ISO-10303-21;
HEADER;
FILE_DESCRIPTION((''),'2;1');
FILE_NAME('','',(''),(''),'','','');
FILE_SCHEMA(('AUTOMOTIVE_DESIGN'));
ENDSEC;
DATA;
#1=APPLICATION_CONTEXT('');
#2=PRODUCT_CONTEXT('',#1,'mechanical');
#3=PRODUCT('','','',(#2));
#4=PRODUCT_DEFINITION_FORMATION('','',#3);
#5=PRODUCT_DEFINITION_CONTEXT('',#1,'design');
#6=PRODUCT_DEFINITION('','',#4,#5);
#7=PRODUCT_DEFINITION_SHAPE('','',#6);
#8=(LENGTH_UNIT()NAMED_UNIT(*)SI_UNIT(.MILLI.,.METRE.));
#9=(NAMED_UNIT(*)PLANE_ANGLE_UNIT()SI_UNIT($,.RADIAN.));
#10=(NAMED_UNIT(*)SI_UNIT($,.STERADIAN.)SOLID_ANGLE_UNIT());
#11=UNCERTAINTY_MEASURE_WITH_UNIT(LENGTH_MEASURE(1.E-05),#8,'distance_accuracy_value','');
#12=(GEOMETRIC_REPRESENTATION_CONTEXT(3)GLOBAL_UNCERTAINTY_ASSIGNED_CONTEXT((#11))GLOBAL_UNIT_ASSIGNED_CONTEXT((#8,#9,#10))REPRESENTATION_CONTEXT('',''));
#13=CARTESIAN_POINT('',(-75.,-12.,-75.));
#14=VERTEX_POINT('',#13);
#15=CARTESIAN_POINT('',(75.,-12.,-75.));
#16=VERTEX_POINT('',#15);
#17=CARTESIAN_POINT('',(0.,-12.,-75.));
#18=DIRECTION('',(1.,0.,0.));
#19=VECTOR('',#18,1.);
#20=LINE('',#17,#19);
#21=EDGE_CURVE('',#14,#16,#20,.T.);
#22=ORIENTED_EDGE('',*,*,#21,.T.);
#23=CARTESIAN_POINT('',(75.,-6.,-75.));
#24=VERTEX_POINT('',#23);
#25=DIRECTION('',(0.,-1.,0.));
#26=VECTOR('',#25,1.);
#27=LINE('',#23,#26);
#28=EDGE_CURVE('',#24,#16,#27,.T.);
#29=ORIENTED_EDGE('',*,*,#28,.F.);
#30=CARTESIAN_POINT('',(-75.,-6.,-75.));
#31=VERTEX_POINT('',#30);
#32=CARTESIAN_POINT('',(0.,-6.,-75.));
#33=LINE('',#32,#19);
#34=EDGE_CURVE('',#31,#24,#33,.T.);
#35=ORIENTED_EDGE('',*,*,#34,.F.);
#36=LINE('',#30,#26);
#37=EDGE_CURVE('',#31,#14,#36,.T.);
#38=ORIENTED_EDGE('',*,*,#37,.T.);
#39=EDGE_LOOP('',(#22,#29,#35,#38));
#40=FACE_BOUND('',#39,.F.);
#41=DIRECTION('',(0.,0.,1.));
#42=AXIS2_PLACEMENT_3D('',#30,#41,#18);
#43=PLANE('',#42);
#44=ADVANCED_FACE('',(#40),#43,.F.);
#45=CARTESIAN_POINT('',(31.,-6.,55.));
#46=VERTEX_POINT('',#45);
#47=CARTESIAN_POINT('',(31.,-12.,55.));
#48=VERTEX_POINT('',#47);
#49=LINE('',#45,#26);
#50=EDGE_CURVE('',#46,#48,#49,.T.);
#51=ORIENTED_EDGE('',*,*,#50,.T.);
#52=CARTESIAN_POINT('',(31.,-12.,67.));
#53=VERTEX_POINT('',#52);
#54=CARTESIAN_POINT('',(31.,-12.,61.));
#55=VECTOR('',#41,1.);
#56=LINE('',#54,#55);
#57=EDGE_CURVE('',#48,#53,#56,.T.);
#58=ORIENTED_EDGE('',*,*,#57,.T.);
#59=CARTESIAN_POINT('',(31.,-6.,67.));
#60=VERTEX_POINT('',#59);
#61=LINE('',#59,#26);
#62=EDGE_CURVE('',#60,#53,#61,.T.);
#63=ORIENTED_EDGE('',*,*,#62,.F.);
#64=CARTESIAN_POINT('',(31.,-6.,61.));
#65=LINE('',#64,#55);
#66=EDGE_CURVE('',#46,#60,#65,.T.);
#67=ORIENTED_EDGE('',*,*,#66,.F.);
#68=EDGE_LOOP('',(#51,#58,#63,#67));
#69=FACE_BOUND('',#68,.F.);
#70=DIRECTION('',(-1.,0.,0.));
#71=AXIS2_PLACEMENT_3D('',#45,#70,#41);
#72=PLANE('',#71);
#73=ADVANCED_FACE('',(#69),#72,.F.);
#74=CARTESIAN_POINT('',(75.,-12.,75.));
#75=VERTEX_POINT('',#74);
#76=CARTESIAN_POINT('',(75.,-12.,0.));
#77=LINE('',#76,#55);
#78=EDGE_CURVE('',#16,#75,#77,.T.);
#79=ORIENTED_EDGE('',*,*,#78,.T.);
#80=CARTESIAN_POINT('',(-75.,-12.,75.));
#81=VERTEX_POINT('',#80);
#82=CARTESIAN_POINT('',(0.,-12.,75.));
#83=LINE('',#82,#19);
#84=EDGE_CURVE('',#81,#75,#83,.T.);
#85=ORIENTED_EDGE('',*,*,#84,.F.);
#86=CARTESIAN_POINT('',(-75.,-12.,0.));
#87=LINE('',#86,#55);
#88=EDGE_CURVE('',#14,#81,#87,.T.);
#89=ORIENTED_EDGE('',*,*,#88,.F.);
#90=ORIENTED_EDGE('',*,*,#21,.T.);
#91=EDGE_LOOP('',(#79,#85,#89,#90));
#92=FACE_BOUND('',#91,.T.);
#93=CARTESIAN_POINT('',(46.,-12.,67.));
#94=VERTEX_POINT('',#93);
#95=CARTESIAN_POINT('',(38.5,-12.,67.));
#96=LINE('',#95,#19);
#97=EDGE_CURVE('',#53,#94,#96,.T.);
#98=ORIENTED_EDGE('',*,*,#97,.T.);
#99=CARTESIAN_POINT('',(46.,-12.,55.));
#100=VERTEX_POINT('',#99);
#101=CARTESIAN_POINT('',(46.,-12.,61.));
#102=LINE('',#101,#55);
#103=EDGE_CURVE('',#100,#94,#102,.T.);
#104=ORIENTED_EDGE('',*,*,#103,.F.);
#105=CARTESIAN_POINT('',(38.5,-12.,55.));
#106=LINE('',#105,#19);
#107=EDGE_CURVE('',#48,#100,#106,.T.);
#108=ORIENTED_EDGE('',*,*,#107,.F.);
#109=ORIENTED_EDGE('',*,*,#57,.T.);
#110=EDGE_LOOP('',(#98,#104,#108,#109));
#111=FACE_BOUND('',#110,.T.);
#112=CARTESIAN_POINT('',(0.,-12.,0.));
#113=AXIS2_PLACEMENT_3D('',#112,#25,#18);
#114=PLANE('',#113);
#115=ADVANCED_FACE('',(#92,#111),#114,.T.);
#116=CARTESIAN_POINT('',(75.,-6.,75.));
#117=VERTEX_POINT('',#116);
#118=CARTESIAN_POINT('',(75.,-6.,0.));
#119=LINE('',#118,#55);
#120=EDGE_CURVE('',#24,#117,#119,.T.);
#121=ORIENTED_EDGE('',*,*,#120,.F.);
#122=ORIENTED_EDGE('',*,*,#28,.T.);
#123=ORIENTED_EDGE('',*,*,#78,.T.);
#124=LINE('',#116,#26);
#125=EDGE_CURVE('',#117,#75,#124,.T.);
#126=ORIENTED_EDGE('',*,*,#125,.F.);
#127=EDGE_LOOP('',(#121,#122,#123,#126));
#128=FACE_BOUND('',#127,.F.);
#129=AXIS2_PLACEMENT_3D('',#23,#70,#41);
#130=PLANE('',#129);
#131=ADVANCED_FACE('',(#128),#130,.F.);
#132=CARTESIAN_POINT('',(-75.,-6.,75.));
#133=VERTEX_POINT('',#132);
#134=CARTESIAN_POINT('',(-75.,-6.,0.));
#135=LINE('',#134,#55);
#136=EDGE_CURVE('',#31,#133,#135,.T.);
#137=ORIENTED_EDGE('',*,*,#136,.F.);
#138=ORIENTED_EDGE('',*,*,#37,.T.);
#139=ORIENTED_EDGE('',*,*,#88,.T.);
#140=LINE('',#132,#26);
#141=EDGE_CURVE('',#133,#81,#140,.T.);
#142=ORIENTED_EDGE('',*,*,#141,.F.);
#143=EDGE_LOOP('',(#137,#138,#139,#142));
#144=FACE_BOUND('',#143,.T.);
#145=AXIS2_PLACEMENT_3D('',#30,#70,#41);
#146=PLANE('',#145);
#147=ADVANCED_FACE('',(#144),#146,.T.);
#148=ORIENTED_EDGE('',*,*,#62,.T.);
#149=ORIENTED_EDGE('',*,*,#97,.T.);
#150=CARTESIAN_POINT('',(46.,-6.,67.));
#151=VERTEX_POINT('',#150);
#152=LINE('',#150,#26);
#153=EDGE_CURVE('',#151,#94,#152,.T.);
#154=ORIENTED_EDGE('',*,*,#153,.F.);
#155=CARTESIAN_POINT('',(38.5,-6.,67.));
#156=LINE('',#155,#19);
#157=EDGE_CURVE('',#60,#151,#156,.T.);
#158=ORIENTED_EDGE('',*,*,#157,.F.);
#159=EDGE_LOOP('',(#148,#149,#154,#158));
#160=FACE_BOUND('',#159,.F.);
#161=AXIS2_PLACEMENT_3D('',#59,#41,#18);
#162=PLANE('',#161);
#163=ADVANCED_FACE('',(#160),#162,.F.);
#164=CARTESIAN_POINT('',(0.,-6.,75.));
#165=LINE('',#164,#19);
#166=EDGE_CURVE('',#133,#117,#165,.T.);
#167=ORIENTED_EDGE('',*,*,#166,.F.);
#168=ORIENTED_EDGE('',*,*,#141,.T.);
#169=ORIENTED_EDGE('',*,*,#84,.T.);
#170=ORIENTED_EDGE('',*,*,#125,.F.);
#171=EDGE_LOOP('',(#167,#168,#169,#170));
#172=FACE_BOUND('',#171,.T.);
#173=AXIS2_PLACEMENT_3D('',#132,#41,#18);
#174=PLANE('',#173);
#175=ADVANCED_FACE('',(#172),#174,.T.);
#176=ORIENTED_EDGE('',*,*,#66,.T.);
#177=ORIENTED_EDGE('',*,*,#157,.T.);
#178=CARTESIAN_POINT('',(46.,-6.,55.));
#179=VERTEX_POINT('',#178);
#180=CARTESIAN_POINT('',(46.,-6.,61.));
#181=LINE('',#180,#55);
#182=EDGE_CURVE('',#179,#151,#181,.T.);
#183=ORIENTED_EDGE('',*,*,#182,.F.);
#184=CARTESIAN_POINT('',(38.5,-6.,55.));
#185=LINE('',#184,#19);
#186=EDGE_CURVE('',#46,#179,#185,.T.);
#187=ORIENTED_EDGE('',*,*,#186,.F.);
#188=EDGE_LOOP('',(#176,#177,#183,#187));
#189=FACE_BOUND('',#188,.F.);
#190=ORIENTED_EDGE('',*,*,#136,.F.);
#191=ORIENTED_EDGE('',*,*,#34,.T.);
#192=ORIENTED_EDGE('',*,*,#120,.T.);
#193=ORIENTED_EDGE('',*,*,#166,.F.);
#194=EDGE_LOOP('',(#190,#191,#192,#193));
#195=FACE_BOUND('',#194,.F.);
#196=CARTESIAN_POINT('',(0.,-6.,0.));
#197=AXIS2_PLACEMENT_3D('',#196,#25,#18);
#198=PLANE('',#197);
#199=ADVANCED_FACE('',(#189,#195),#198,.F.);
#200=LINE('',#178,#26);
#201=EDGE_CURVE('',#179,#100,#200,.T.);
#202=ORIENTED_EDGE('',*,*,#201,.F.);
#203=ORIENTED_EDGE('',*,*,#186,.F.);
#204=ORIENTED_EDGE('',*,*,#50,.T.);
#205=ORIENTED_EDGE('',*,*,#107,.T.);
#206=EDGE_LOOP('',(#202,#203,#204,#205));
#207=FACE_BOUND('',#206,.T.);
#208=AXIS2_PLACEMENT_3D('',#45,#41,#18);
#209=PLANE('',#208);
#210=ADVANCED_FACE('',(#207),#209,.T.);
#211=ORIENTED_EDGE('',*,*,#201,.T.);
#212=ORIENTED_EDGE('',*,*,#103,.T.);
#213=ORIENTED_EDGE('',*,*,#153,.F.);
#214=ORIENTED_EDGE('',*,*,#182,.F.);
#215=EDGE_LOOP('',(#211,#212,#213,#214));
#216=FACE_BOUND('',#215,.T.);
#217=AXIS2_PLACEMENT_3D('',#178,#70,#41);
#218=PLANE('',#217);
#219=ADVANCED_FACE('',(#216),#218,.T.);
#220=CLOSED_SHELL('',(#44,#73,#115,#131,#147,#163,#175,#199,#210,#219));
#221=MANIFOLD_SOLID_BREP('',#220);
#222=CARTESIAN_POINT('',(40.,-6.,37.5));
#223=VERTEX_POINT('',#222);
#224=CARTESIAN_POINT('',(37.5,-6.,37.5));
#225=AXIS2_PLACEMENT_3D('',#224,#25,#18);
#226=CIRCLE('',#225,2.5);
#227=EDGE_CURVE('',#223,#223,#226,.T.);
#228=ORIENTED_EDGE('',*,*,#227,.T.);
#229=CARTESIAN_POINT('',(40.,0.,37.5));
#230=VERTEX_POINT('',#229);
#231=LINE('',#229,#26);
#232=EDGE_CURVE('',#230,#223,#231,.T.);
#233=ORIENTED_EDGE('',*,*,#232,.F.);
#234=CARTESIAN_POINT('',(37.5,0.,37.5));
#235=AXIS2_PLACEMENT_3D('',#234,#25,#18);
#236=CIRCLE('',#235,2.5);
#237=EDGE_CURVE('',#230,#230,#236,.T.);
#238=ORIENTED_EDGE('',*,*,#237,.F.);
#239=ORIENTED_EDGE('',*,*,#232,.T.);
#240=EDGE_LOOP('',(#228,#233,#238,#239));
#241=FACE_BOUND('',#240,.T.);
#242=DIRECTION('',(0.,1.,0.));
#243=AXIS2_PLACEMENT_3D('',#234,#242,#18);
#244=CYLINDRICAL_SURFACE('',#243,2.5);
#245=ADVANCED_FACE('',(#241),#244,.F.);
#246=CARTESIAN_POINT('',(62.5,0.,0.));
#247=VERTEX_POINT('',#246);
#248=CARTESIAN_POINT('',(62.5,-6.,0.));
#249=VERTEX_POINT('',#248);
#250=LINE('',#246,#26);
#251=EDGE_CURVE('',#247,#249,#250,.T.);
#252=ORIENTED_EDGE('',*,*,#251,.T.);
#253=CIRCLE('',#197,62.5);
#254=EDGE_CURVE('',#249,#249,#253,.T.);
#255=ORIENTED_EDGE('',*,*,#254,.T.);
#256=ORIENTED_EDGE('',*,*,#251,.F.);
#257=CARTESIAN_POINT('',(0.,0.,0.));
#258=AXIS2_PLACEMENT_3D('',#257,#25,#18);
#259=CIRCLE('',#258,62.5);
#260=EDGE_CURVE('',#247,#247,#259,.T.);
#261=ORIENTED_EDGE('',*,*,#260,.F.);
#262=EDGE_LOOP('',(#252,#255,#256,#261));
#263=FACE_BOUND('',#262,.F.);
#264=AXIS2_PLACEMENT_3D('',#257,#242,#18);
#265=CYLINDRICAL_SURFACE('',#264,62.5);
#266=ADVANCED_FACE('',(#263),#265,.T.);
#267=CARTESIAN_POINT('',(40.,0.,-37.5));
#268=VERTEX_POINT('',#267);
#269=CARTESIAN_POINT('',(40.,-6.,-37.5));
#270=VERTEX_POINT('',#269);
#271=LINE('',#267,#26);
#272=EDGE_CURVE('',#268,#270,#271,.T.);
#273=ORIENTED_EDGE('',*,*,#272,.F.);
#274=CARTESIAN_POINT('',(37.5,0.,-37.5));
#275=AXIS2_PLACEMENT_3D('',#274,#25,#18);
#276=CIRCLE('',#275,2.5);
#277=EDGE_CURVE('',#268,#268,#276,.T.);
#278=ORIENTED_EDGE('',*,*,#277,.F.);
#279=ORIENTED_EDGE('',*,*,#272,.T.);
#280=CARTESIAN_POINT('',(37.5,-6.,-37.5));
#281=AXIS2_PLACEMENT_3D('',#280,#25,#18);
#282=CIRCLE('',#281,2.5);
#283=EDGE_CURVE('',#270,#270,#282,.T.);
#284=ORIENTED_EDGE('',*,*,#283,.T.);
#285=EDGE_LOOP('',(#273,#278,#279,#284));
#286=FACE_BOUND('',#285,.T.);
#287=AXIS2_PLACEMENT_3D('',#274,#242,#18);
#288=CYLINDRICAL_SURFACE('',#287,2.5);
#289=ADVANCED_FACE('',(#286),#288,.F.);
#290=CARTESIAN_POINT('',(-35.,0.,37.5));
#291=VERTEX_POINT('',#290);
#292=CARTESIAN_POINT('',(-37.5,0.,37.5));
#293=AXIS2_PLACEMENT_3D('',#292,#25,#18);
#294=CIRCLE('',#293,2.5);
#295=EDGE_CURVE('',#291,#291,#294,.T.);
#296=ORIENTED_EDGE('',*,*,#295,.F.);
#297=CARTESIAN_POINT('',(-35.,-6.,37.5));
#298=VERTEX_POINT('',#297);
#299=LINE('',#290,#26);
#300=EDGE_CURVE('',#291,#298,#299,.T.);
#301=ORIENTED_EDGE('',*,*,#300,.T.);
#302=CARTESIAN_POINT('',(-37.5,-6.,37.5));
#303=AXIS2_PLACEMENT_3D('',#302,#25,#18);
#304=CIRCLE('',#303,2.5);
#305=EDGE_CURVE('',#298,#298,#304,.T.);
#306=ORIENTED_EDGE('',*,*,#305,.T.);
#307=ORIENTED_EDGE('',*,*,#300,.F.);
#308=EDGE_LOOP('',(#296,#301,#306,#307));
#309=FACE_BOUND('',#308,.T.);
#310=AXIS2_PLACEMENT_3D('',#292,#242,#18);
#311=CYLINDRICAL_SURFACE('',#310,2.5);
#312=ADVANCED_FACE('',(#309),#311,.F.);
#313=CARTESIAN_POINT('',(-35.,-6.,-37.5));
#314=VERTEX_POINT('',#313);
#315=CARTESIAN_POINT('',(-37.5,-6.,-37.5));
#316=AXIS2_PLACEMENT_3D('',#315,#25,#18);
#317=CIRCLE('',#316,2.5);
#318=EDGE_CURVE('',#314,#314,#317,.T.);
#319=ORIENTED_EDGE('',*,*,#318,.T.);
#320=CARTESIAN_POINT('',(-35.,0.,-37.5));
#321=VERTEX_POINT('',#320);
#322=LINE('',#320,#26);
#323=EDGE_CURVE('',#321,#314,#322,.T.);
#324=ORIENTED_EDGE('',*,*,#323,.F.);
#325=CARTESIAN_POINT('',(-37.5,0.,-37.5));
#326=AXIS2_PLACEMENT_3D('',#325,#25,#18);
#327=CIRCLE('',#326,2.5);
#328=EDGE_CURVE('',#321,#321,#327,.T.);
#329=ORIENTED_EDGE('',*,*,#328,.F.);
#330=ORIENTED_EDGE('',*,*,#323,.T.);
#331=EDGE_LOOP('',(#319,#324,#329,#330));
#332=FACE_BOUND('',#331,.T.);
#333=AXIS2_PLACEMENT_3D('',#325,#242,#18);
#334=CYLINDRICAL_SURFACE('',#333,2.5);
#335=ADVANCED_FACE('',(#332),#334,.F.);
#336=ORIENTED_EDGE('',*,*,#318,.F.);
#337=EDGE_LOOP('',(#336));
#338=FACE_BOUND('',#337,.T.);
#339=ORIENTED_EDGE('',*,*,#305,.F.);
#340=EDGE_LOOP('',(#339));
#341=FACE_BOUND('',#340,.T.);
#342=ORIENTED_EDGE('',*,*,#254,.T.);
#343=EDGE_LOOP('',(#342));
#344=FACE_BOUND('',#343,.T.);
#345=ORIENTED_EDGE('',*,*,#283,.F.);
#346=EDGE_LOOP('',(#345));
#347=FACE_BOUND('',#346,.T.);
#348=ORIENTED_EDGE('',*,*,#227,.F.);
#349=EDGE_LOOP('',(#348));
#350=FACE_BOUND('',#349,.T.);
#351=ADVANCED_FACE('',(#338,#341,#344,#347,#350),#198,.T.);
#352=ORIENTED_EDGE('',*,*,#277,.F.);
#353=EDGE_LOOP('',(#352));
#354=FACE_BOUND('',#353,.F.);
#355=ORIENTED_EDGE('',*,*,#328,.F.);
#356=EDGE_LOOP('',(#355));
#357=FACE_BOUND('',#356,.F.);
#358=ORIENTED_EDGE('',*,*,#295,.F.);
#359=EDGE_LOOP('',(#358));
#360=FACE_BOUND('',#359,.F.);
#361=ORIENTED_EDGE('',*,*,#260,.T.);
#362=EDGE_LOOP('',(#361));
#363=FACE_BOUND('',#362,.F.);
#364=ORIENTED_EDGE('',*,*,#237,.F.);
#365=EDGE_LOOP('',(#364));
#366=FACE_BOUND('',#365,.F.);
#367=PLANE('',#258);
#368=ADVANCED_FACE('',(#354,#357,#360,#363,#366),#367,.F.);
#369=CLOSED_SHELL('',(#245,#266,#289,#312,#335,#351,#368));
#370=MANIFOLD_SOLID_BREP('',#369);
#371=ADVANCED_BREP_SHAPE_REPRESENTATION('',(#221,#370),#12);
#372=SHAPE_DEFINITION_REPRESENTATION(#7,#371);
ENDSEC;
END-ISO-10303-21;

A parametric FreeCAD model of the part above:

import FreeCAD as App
import Part
import Sketcher

V = App.Vector

doc = App.newDocument("Part")
body = doc.addObject("PartDesign::Body", "Body")

sketch1 = body.newObject("Sketcher::SketchObject", "Sketch")
sketch1.AttachmentSupport = (doc.getObject("XZ_Plane"), [""])
sketch1.MapMode = "FlatFace"
sketch1.addGeometry(Part.Circle(V(0, 0, 0), V(0, 0, 1), 62.5), False)
sketch1.addGeometry(Part.Circle(V(-37.5, -37.5, 0), V(0, 0, 1), 2.5), False)
sketch1.addGeometry(Part.Circle(V(37.5, -37.5, 0), V(0, 0, 1), 2.5), False)
sketch1.addGeometry(Part.Circle(V(-37.5, 37.5, 0), V(0, 0, 1), 2.5), False)
sketch1.addGeometry(Part.Circle(V(37.5, 37.5, 0), V(0, 0, 1), 2.5), False)
sketch1.addConstraint(Sketcher.Constraint("Coincident", 0, 3, -1, 1))
sketch1.addConstraint(Sketcher.Constraint("Equal", 1, 2))
sketch1.addConstraint(Sketcher.Constraint("Equal", 2, 3))
sketch1.addConstraint(Sketcher.Constraint("Equal", 3, 4))
sketch1.addConstraint(Sketcher.Constraint("Symmetric", 2, 3, 3, 3, -1, 1))
sketch1.addConstraint(Sketcher.Constraint("Symmetric", 1, 3, 4, 3, -1, 1))
sketch1.addConstraint(Sketcher.Constraint("Symmetric", 1, 3, 2, 3, -2))
sketch1.addConstraint(Sketcher.Constraint("Diameter", 0, 125.0))
sketch1.addConstraint(Sketcher.Constraint("Diameter", 1, 5.0))
sketch1.addConstraint(Sketcher.Constraint("DistanceX", 1, 3, 2, 3, 75.0))
sketch1.addConstraint(Sketcher.Constraint("DistanceY", 1, 3, 3, 3, 75.0))
pad1 = body.newObject("PartDesign::Pad", "Pad")
pad1.Profile = sketch1
pad1.Length = 6
body2 = doc.addObject("PartDesign::Body", "Body001")

sketch2 = body2.newObject("Sketcher::SketchObject", "Sketch001")
sketch2.AttachmentSupport = (doc.getObject("XZ_Plane001"), [""])
sketch2.MapMode = "FlatFace"
sketch2.AttachmentOffset = App.Placement(V(0, 0, 6), App.Rotation())
sketch2.addGeometry(Part.LineSegment(V(-75, 75, 0), V(-75, -75, 0)), False)
sketch2.addGeometry(Part.LineSegment(V(-75, -75, 0), V(75, -75, 0)), False)
sketch2.addGeometry(Part.LineSegment(V(75, -75, 0), V(75, 75, 0)), False)
sketch2.addGeometry(Part.LineSegment(V(75, 75, 0), V(-75, 75, 0)), False)
sketch2.addGeometry(Part.LineSegment(V(46, 55, 0), V(31, 55, 0)), False)
sketch2.addGeometry(Part.LineSegment(V(31, 55, 0), V(31, 67, 0)), False)
sketch2.addGeometry(Part.LineSegment(V(31, 67, 0), V(46, 67, 0)), False)
sketch2.addGeometry(Part.LineSegment(V(46, 67, 0), V(46, 55, 0)), False)
sketch2.addConstraint(Sketcher.Constraint("Coincident", 0, 2, 1, 1))
sketch2.addConstraint(Sketcher.Constraint("Coincident", 1, 2, 2, 1))
sketch2.addConstraint(Sketcher.Constraint("Coincident", 2, 2, 3, 1))
sketch2.addConstraint(Sketcher.Constraint("Coincident", 3, 2, 0, 1))
sketch2.addConstraint(Sketcher.Constraint("Coincident", 4, 2, 5, 1))
sketch2.addConstraint(Sketcher.Constraint("Coincident", 5, 2, 6, 1))
sketch2.addConstraint(Sketcher.Constraint("Coincident", 6, 2, 7, 1))
sketch2.addConstraint(Sketcher.Constraint("Coincident", 7, 2, 4, 1))
sketch2.addConstraint(Sketcher.Constraint("Vertical", 0))
sketch2.addConstraint(Sketcher.Constraint("Horizontal", 1))
sketch2.addConstraint(Sketcher.Constraint("Vertical", 2))
sketch2.addConstraint(Sketcher.Constraint("Horizontal", 3))
sketch2.addConstraint(Sketcher.Constraint("Horizontal", 4))
sketch2.addConstraint(Sketcher.Constraint("Vertical", 5))
sketch2.addConstraint(Sketcher.Constraint("Horizontal", 6))
sketch2.addConstraint(Sketcher.Constraint("Vertical", 7))
sketch2.addConstraint(Sketcher.Constraint("Symmetric", 0, 2, 2, 2, -1, 1))
sketch2.addConstraint(Sketcher.Constraint("Equal", 3, 0))
sketch2.addConstraint(Sketcher.Constraint("DistanceX", 1, 1, 1, 2, 150.0))
sketch2.addConstraint(Sketcher.Constraint("DistanceX", 4, 2, 4, 1, 15.0))
sketch2.addConstraint(Sketcher.Constraint("DistanceY", 5, 1, 5, 2, 12.0))
sketch2.addConstraint(Sketcher.Constraint("DistanceX", -1, 1, 4, 2, 31.0))
sketch2.addConstraint(Sketcher.Constraint("DistanceY", -1, 1, 4, 2, 55.0))
pad2 = body2.newObject("PartDesign::Pad", "Pad001")
pad2.Profile = sketch2
pad2.Length = 6

doc.recompute()
